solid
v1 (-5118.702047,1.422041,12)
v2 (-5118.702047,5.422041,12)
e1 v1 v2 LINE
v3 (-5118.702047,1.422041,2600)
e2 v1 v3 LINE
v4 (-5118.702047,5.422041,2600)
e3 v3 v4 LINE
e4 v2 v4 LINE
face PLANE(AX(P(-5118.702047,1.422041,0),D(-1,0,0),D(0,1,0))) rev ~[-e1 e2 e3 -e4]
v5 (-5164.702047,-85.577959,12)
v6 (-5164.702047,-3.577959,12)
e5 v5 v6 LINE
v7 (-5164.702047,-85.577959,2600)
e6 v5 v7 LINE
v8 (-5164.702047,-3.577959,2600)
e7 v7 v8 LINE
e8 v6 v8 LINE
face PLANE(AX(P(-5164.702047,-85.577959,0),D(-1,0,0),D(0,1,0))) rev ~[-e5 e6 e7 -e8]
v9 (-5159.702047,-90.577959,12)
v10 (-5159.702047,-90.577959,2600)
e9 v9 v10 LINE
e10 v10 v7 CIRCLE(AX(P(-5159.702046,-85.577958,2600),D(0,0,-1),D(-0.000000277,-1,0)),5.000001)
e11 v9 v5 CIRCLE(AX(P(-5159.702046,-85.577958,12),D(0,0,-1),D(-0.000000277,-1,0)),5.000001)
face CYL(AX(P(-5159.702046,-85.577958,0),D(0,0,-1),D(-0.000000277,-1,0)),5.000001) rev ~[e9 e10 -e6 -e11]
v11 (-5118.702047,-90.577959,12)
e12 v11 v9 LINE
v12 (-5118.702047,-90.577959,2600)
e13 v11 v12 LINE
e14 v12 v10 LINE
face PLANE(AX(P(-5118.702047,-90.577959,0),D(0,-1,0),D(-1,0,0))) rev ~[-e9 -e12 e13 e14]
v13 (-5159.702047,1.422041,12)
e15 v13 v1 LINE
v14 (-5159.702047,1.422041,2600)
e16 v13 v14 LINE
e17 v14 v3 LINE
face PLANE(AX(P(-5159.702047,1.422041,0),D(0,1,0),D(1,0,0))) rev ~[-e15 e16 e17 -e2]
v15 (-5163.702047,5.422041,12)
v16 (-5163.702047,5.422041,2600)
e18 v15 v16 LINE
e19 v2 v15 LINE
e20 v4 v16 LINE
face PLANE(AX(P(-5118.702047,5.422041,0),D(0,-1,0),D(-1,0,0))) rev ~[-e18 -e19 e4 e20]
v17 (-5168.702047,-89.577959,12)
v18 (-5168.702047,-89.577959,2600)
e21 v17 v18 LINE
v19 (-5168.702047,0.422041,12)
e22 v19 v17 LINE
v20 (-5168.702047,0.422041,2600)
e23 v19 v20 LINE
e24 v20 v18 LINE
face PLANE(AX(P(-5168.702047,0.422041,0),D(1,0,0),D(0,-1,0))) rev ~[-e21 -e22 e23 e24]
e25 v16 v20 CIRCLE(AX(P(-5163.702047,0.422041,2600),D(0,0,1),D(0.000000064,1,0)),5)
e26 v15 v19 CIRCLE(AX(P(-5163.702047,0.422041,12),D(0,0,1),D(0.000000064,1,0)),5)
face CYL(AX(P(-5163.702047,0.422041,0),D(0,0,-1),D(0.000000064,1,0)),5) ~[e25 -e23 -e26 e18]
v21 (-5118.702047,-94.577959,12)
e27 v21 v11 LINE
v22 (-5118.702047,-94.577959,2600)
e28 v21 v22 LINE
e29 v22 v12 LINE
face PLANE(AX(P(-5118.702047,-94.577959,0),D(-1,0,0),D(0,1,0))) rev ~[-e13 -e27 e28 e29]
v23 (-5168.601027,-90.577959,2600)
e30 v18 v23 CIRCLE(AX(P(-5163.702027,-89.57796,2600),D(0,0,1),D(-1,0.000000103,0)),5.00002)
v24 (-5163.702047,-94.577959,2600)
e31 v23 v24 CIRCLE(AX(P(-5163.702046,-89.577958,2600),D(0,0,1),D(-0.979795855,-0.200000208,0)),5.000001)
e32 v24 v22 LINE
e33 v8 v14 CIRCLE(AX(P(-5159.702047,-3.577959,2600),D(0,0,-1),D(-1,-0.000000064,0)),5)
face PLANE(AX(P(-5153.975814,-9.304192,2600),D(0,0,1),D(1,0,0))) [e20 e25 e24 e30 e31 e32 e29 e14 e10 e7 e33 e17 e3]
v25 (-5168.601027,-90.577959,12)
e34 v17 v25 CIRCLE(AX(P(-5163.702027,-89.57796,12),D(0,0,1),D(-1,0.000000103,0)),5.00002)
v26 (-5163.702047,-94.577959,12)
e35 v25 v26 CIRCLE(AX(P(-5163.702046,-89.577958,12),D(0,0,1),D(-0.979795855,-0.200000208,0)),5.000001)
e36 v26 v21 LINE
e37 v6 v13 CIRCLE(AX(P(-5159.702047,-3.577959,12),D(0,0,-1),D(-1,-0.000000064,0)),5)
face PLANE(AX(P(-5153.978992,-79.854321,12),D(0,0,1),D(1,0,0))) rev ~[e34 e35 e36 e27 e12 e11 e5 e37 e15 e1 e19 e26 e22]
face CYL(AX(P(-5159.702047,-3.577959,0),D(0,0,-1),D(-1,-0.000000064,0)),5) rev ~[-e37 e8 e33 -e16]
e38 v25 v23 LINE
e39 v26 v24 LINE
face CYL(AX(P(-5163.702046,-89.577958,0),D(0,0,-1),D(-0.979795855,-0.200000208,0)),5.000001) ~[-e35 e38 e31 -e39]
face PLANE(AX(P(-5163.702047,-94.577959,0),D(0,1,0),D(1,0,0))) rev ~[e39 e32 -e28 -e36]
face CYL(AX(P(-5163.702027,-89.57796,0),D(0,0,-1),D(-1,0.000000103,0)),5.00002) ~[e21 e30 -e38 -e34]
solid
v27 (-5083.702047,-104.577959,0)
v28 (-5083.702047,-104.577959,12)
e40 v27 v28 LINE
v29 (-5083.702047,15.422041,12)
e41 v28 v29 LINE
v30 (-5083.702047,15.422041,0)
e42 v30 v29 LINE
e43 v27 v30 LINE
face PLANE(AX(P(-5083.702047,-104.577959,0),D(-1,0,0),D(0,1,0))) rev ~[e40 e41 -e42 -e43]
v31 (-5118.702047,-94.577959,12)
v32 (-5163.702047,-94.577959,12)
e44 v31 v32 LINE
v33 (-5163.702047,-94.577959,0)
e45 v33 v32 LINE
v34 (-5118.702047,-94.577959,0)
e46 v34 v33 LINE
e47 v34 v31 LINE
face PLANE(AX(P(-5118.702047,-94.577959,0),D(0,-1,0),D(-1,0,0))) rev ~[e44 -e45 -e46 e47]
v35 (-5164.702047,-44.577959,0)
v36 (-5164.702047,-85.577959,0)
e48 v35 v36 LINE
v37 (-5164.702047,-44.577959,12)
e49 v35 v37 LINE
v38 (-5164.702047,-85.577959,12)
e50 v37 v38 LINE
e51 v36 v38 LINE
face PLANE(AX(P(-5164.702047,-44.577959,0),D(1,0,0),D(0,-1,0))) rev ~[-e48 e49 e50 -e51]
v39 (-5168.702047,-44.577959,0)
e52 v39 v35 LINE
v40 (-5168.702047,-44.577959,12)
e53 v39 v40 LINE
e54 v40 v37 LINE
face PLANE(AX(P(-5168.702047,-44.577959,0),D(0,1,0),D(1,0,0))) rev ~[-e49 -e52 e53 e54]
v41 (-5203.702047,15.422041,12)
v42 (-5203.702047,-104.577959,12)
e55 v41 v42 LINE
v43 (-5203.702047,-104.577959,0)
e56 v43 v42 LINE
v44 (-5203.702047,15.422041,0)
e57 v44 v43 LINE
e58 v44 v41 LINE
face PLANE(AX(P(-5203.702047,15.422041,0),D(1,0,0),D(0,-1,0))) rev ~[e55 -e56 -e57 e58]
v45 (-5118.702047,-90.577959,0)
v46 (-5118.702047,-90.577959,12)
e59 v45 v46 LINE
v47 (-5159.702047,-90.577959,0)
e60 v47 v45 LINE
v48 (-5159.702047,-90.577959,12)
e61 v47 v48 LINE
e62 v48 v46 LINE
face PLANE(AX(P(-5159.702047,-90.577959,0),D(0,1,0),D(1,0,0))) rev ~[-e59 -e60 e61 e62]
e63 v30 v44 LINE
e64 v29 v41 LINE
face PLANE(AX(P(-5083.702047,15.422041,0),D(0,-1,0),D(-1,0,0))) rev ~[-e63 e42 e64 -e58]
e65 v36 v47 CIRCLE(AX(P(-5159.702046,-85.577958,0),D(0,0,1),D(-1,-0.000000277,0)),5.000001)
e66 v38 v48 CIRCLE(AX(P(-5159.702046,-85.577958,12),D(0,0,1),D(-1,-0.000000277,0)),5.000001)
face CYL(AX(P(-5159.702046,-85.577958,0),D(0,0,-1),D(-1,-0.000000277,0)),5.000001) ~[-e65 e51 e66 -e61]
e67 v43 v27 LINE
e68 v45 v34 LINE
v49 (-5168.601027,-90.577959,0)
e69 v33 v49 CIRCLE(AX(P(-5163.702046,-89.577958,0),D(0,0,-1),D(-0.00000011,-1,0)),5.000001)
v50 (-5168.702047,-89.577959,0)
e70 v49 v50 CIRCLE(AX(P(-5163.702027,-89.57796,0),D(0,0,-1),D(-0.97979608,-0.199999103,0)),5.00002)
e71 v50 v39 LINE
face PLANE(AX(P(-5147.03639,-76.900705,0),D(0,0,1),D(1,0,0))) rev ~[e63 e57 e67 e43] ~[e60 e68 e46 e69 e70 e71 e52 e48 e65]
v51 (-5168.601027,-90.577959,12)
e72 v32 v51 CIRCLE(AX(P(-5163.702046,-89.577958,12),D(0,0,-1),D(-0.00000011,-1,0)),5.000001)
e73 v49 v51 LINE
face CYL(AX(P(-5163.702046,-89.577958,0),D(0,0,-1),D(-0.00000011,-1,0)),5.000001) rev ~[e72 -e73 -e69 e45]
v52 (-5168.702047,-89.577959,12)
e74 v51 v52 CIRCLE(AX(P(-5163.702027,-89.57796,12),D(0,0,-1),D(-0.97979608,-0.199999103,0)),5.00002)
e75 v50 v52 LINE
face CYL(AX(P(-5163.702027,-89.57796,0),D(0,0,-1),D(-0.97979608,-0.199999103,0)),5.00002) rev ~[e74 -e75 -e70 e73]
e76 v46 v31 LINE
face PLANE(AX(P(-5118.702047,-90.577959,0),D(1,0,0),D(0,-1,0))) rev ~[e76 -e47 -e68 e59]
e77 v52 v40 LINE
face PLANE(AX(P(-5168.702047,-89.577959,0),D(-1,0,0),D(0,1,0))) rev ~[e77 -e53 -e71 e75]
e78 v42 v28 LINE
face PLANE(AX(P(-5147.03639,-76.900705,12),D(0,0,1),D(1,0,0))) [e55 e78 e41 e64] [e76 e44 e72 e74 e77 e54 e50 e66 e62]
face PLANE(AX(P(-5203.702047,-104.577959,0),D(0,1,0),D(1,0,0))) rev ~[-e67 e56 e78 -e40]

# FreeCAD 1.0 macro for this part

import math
import FreeCAD as App
import Part
import Sketcher

V = App.Vector


def add_polygon(sketch, points):
    """Adds a closed chain of lines whose ends are joined by coincident constraints."""
    first, n = sketch.GeometryCount, len(points)
    for a, b in zip(points, points[1:] + points[:1]):
        sketch.addGeometry(Part.LineSegment(App.Vector(*a, 0), App.Vector(*b, 0)), False)
    for i in range(n):
        sketch.addConstraint(Sketcher.Constraint("Coincident", first + i, 2, first + (i + 1) % n, 1))

doc = App.newDocument("Part")
body = doc.addObject("PartDesign::Body", "Body")

# Sketch on XY plane
sketch1 = body.newObject("Sketcher::SketchObject", "Sketch")
sketch1.AttachmentSupport = (doc.getObject("XY_Plane"), [""])
sketch1.MapMode = "FlatFace"
sketch1.addGeometry(Part.LineSegment(V(-5168.702047, 0.422041, 0), V(-5168.702047, -89.577959, 0)), False)
sketch1.addGeometry(Part.ArcOfCircle(Part.Circle(V(-5163.702027, -89.57796, 0), V(0, 0, 1), 5.00002), math.radians(179.999994), math.radians(191.536907)), False)
sketch1.addGeometry(Part.ArcOfCircle(Part.Circle(V(-5163.702046, -89.577958, 0), V(0, 0, 1), 5.000001), math.radians(-168.463029), math.radians(-90.000006)), False)
sketch1.addGeometry(Part.LineSegment(V(-5163.702047, -94.577959, 0), V(-5118.702047, -94.577959, 0)), False)
sketch1.addGeometry(Part.LineSegment(V(-5118.702047, -94.577959, 0), V(-5118.702047, -90.577959, 0)), False)
sketch1.addGeometry(Part.LineSegment(V(-5118.702047, -90.577959, 0), V(-5159.702047, -90.577959, 0)), False)
sketch1.addGeometry(Part.ArcOfCircle(Part.Circle(V(-5159.702046, -85.577958, 0), V(0, 0, 1), 5.000001), math.radians(-179.999984), math.radians(-90.000016)), False)
sketch1.addGeometry(Part.LineSegment(V(-5164.702047, -85.577959, 0), V(-5164.702047, -3.577959, 0)), False)
sketch1.addGeometry(Part.ArcOfCircle(Part.Circle(V(-5159.702047, -3.577959, 0), V(0, 0, 1), 5), math.radians(89.999996), math.radians(180.000004)), False)
sketch1.addGeometry(Part.LineSegment(V(-5159.702047, 1.422041, 0), V(-5118.702047, 1.422041, 0)), False)
sketch1.addGeometry(Part.LineSegment(V(-5118.702047, 1.422041, 0), V(-5118.702047, 5.422041, 0)), False)
sketch1.addGeometry(Part.LineSegment(V(-5118.702047, 5.422041, 0), V(-5163.702047, 5.422041, 0)), False)
sketch1.addGeometry(Part.ArcOfCircle(Part.Circle(V(-5163.702047, 0.422041, 0), V(0, 0, 1), 5), math.radians(89.999996), math.radians(180.000004)), False)
sketch1.addConstraint(Sketcher.Constraint("Tangent", 0, 2, 1, 1))
sketch1.addConstraint(Sketcher.Constraint("Tangent", 1, 2, 2, 1))
sketch1.addConstraint(Sketcher.Constraint("Tangent", 2, 2, 3, 1))
sketch1.addConstraint(Sketcher.Constraint("Coincident", 3, 2, 4, 1))
sketch1.addConstraint(Sketcher.Constraint("Coincident", 4, 2, 5, 1))
sketch1.addConstraint(Sketcher.Constraint("Tangent", 5, 2, 6, 2))
sketch1.addConstraint(Sketcher.Constraint("Tangent", 6, 1, 7, 1))
sketch1.addConstraint(Sketcher.Constraint("Tangent", 7, 2, 8, 2))
sketch1.addConstraint(Sketcher.Constraint("Tangent", 8, 1, 9, 1))
sketch1.addConstraint(Sketcher.Constraint("Coincident", 9, 2, 10, 1))
sketch1.addConstraint(Sketcher.Constraint("Coincident", 10, 2, 11, 1))
sketch1.addConstraint(Sketcher.Constraint("Tangent", 11, 2, 12, 1))
sketch1.addConstraint(Sketcher.Constraint("Tangent", 12, 2, 0, 1))
sketch1.addConstraint(Sketcher.Constraint("Vertical", 0))
sketch1.addConstraint(Sketcher.Constraint("Horizontal", 3))
sketch1.addConstraint(Sketcher.Constraint("Vertical", 4))
sketch1.addConstraint(Sketcher.Constraint("Horizontal", 5))
sketch1.addConstraint(Sketcher.Constraint("Vertical", 7))
sketch1.addConstraint(Sketcher.Constraint("Horizontal", 9))
sketch1.addConstraint(Sketcher.Constraint("Vertical", 10))
sketch1.addConstraint(Sketcher.Constraint("Horizontal", 11))
sketch1.addConstraint(Sketcher.Constraint("Equal", 2, 6))
sketch1.addConstraint(Sketcher.Constraint("Equal", 6, 8))
sketch1.addConstraint(Sketcher.Constraint("Equal", 8, 12))
sketch1.addConstraint(Sketcher.Constraint("Horizontal", 1, 3, 2, 3))
sketch1.addConstraint(Sketcher.Constraint("Horizontal", 1, 2, 4, 2))
sketch1.addConstraint(Sketcher.Constraint("Vertical", 4, 2, 9, 2))
sketch1.addConstraint(Sketcher.Constraint("Equal", 4, 10))
sketch1.addConstraint(Sketcher.Constraint("Radius", 2, 5.000001))
sketch1.addConstraint(Sketcher.Constraint("DistanceX", 3, 1, 3, 2, 45.0))
sketch1.addConstraint(Sketcher.Constraint("DistanceX", 5, 2, 5, 1, 41.0))
sketch1.addConstraint(Sketcher.Constraint("DistanceY", 0, 2, 0, 1, 90.0))
sketch1.addConstraint(Sketcher.Constraint("DistanceY", 4, 1, 4, 2, 4.0))
sketch1.addConstraint(Sketcher.Constraint("DistanceY", 1, 3, -1, 1, 89.57796))
sketch1.addConstraint(Sketcher.Constraint("DistanceX", 1, 3, -1, 1, 5163.702027))
pad1 = body.newObject("PartDesign::Pad", "Pad")
pad1.Profile = sketch1
pad1.Length = 2600

# Sketch on XY plane
sketch2 = body.newObject("Sketcher::SketchObject", "Sketch001")
sketch2.AttachmentSupport = (doc.getObject("XY_Plane"), [""])
sketch2.MapMode = "FlatFace"
sketch2.addGeometry(Part.ArcOfCircle(Part.Circle(V(-5163.702027, -89.57796, 0), V(0, 0, 1), 5.00002), math.radians(179.999994), math.radians(191.536907)), False)
sketch2.addGeometry(Part.ArcOfCircle(Part.Circle(V(-5163.702046, -89.577958, 0), V(0, 0, 1), 5.000001), math.radians(-168.463029), math.radians(-90.000006)), False)
sketch2.addGeometry(Part.LineSegment(V(-5163.702047, -94.577959, 0), V(-5118.702047, -94.577959, 0)), False)
sketch2.addGeometry(Part.LineSegment(V(-5118.702047, -94.577959, 0), V(-5118.702047, -90.577959, 0)), False)
sketch2.addGeometry(Part.LineSegment(V(-5118.702047, -90.577959, 0), V(-5159.702047, -90.577959, 0)), False)
sketch2.addGeometry(Part.ArcOfCircle(Part.Circle(V(-5159.702046, -85.577958, 0), V(0, 0, 1), 5.000001), math.radians(-179.999984), math.radians(-90.000016)), False)
sketch2.addGeometry(Part.LineSegment(V(-5164.702047, -85.577959, 0), V(-5164.702047, -3.577959, 0)), False)
sketch2.addGeometry(Part.ArcOfCircle(Part.Circle(V(-5159.702047, -3.577959, 0), V(0, 0, 1), 5), math.radians(89.999996), math.radians(180.000004)), False)
sketch2.addGeometry(Part.LineSegment(V(-5159.702047, 1.422041, 0), V(-5118.702047, 1.422041, 0)), False)
sketch2.addGeometry(Part.LineSegment(V(-5118.702047, 1.422041, 0), V(-5118.702047, 5.422041, 0)), False)
sketch2.addGeometry(Part.LineSegment(V(-5118.702047, 5.422041, 0), V(-5163.702047, 5.422041, 0)), False)
sketch2.addGeometry(Part.ArcOfCircle(Part.Circle(V(-5163.702047, 0.422041, 0), V(0, 0, 1), 5), math.radians(89.999996), math.radians(180.000004)), False)
sketch2.addGeometry(Part.LineSegment(V(-5168.702047, 0.422041, 0), V(-5168.702047, -89.577959, 0)), False)
sketch2.addConstraint(Sketcher.Constraint("Tangent", 0, 2, 1, 1))
sketch2.addConstraint(Sketcher.Constraint("Tangent", 1, 2, 2, 1))
sketch2.addConstraint(Sketcher.Constraint("Coincident", 2, 2, 3, 1))
sketch2.addConstraint(Sketcher.Constraint("Coincident", 3, 2, 4, 1))
sketch2.addConstraint(Sketcher.Constraint("Tangent", 4, 2, 5, 2))
sketch2.addConstraint(Sketcher.Constraint("Tangent", 5, 1, 6, 1))
sketch2.addConstraint(Sketcher.Constraint("Tangent", 6, 2, 7, 2))
sketch2.addConstraint(Sketcher.Constraint("Tangent", 7, 1, 8, 1))
sketch2.addConstraint(Sketcher.Constraint("Coincident", 8, 2, 9, 1))
sketch2.addConstraint(Sketcher.Constraint("Coincident", 9, 2, 10, 1))
sketch2.addConstraint(Sketcher.Constraint("Tangent", 10, 2, 11, 1))
sketch2.addConstraint(Sketcher.Constraint("Tangent", 11, 2, 12, 1))
sketch2.addConstraint(Sketcher.Constraint("Tangent", 12, 2, 0, 1))
sketch2.addConstraint(Sketcher.Constraint("Horizontal", 2))
sketch2.addConstraint(Sketcher.Constraint("Vertical", 3))
sketch2.addConstraint(Sketcher.Constraint("Horizontal", 4))
sketch2.addConstraint(Sketcher.Constraint("Vertical", 6))
sketch2.addConstraint(Sketcher.Constraint("Horizontal", 8))
sketch2.addConstraint(Sketcher.Constraint("Vertical", 9))
sketch2.addConstraint(Sketcher.Constraint("Horizontal", 10))
sketch2.addConstraint(Sketcher.Constraint("Vertical", 12))
sketch2.addConstraint(Sketcher.Constraint("Equal", 1, 5))
sketch2.addConstraint(Sketcher.Constraint("Equal", 5, 7))
sketch2.addConstraint(Sketcher.Constraint("Equal", 7, 11))
sketch2.addConstraint(Sketcher.Constraint("Horizontal", 0, 3, 1, 3))
sketch2.addConstraint(Sketcher.Constraint("Horizontal", 0, 2, 3, 2))
sketch2.addConstraint(Sketcher.Constraint("Vertical", 3, 2, 8, 2))
sketch2.addConstraint(Sketcher.Constraint("Equal", 3, 9))
sketch2.addConstraint(Sketcher.Constraint("Radius", 1, 5.000001))
sketch2.addConstraint(Sketcher.Constraint("DistanceX", 2, 1, 2, 2, 45.0))
sketch2.addConstraint(Sketcher.Constraint("DistanceX", 4, 2, 4, 1, 41.0))
sketch2.addConstraint(Sketcher.Constraint("DistanceY", 3, 1, 3, 2, 4.0))
sketch2.addConstraint(Sketcher.Constraint("DistanceY", 6, 1, 6, 2, 82.0))
sketch2.addConstraint(Sketcher.Constraint("DistanceY", 0, 3, -1, 1, 89.57796))
sketch2.addConstraint(Sketcher.Constraint("DistanceX", 0, 3, -1, 1, 5163.702027))
pocket1 = body.newObject("PartDesign::Pocket", "Pocket")
pocket1.Profile = sketch2
pocket1.Length = 12
pocket1.Reversed = True
body2 = doc.addObject("PartDesign::Body", "Body001")

# Sketch on XY plane
sketch3 = body2.newObject("Sketcher::SketchObject", "Sketch002")
sketch3.AttachmentSupport = (doc.getObject("XY_Plane001"), [""])
sketch3.MapMode = "FlatFace"
add_polygon(sketch3, [(-5203.702047, -104.577959), (-5083.702047, -104.577959), (-5083.702047, 15.422041), (-5203.702047, 15.422041)])  # lines 0-3
sketch3.addGeometry(Part.LineSegment(V(-5164.702047, -44.577959, 0), V(-5164.702047, -85.577959, 0)), False)  # 4
sketch3.addGeometry(Part.ArcOfCircle(Part.Circle(V(-5159.702046, -85.577958, 0), V(0, 0, 1), 5.000001), math.radians(-179.999984), math.radians(-90.000016)), False)  # 5
sketch3.addGeometry(Part.LineSegment(V(-5159.702047, -90.577959, 0), V(-5118.702047, -90.577959, 0)), False)  # 6
sketch3.addGeometry(Part.LineSegment(V(-5118.702047, -90.577959, 0), V(-5118.702047, -94.577959, 0)), False)  # 7
sketch3.addGeometry(Part.LineSegment(V(-5118.702047, -94.577959, 0), V(-5163.702047, -94.577959, 0)), False)  # 8
sketch3.addGeometry(Part.ArcOfCircle(Part.Circle(V(-5163.702046, -89.577958, 0), V(0, 0, 1), 5.000001), math.radians(-168.463029), math.radians(-90.000006)), False)  # 9
sketch3.addGeometry(Part.ArcOfCircle(Part.Circle(V(-5163.702027, -89.57796, 0), V(0, 0, 1), 5.00002), math.radians(179.999994), math.radians(191.536907)), False)  # 10
sketch3.addGeometry(Part.LineSegment(V(-5168.702047, -89.577959, 0), V(-5168.702047, -44.577959, 0)), False)  # 11
sketch3.addGeometry(Part.LineSegment(V(-5168.702047, -44.577959, 0), V(-5164.702047, -44.577959, 0)), False)  # 12
sketch3.addConstraint(Sketcher.Constraint("Tangent", 4, 2, 5, 1))
sketch3.addConstraint(Sketcher.Constraint("Tangent", 5, 2, 6, 1))
sketch3.addConstraint(Sketcher.Constraint("Coincident", 6, 2, 7, 1))
sketch3.addConstraint(Sketcher.Constraint("Coincident", 7, 2, 8, 1))
sketch3.addConstraint(Sketcher.Constraint("Tangent", 8, 2, 9, 2))
sketch3.addConstraint(Sketcher.Constraint("Tangent", 9, 1, 10, 2))
sketch3.addConstraint(Sketcher.Constraint("Tangent", 10, 1, 11, 1))
sketch3.addConstraint(Sketcher.Constraint("Coincident", 11, 2, 12, 1))
sketch3.addConstraint(Sketcher.Constraint("Coincident", 12, 2, 4, 1))
sketch3.addConstraint(Sketcher.Constraint("Horizontal", 0))
sketch3.addConstraint(Sketcher.Constraint("Vertical", 1))
sketch3.addConstraint(Sketcher.Constraint("Horizontal", 2))
sketch3.addConstraint(Sketcher.Constraint("Vertical", 3))
sketch3.addConstraint(Sketcher.Constraint("Vertical", 4))
sketch3.addConstraint(Sketcher.Constraint("Horizontal", 6))
sketch3.addConstraint(Sketcher.Constraint("Vertical", 7))
sketch3.addConstraint(Sketcher.Constraint("Horizontal", 8))
sketch3.addConstraint(Sketcher.Constraint("Vertical", 11))
sketch3.addConstraint(Sketcher.Constraint("Horizontal", 12))
sketch3.addConstraint(Sketcher.Constraint("Equal", 5, 9))
sketch3.addConstraint(Sketcher.Constraint("Horizontal", 9, 3, 10, 3))
sketch3.addConstraint(Sketcher.Constraint("Horizontal", 6, 2, 9, 1))
sketch3.addConstraint(Sketcher.Constraint("Equal", 2, 1))
sketch3.addConstraint(Sketcher.Constraint("Equal", 6, 4))
sketch3.addConstraint(Sketcher.Constraint("Equal", 12, 7))
sketch3.addConstraint(Sketcher.Constraint("Radius", 5, 5.000001))
sketch3.addConstraint(Sketcher.Constraint("DistanceX", 0, 1, 0, 2, 120.0))
sketch3.addConstraint(Sketcher.Constraint("DistanceX", 6, 1, 6, 2, 41.0))
sketch3.addConstraint(Sketcher.Constraint("DistanceX", 8, 2, 8, 1, 45.0))
sketch3.addConstraint(Sketcher.Constraint("DistanceX", 5, 3, 0, 2, 75.999999))
sketch3.addConstraint(Sketcher.Constraint("DistanceY", 0, 2, 5, 3, 19.000001))
sketch3.addConstraint(Sketcher.Constraint("DistanceY", 10, 3, -1, 1, 89.57796))
sketch3.addConstraint(Sketcher.Constraint("DistanceX", 5, 3, -1, 1, 5159.702046))
pad2 = body2.newObject("PartDesign::Pad", "Pad001")
pad2.Profile = sketch3
pad2.Length = 12

doc.recompute()
